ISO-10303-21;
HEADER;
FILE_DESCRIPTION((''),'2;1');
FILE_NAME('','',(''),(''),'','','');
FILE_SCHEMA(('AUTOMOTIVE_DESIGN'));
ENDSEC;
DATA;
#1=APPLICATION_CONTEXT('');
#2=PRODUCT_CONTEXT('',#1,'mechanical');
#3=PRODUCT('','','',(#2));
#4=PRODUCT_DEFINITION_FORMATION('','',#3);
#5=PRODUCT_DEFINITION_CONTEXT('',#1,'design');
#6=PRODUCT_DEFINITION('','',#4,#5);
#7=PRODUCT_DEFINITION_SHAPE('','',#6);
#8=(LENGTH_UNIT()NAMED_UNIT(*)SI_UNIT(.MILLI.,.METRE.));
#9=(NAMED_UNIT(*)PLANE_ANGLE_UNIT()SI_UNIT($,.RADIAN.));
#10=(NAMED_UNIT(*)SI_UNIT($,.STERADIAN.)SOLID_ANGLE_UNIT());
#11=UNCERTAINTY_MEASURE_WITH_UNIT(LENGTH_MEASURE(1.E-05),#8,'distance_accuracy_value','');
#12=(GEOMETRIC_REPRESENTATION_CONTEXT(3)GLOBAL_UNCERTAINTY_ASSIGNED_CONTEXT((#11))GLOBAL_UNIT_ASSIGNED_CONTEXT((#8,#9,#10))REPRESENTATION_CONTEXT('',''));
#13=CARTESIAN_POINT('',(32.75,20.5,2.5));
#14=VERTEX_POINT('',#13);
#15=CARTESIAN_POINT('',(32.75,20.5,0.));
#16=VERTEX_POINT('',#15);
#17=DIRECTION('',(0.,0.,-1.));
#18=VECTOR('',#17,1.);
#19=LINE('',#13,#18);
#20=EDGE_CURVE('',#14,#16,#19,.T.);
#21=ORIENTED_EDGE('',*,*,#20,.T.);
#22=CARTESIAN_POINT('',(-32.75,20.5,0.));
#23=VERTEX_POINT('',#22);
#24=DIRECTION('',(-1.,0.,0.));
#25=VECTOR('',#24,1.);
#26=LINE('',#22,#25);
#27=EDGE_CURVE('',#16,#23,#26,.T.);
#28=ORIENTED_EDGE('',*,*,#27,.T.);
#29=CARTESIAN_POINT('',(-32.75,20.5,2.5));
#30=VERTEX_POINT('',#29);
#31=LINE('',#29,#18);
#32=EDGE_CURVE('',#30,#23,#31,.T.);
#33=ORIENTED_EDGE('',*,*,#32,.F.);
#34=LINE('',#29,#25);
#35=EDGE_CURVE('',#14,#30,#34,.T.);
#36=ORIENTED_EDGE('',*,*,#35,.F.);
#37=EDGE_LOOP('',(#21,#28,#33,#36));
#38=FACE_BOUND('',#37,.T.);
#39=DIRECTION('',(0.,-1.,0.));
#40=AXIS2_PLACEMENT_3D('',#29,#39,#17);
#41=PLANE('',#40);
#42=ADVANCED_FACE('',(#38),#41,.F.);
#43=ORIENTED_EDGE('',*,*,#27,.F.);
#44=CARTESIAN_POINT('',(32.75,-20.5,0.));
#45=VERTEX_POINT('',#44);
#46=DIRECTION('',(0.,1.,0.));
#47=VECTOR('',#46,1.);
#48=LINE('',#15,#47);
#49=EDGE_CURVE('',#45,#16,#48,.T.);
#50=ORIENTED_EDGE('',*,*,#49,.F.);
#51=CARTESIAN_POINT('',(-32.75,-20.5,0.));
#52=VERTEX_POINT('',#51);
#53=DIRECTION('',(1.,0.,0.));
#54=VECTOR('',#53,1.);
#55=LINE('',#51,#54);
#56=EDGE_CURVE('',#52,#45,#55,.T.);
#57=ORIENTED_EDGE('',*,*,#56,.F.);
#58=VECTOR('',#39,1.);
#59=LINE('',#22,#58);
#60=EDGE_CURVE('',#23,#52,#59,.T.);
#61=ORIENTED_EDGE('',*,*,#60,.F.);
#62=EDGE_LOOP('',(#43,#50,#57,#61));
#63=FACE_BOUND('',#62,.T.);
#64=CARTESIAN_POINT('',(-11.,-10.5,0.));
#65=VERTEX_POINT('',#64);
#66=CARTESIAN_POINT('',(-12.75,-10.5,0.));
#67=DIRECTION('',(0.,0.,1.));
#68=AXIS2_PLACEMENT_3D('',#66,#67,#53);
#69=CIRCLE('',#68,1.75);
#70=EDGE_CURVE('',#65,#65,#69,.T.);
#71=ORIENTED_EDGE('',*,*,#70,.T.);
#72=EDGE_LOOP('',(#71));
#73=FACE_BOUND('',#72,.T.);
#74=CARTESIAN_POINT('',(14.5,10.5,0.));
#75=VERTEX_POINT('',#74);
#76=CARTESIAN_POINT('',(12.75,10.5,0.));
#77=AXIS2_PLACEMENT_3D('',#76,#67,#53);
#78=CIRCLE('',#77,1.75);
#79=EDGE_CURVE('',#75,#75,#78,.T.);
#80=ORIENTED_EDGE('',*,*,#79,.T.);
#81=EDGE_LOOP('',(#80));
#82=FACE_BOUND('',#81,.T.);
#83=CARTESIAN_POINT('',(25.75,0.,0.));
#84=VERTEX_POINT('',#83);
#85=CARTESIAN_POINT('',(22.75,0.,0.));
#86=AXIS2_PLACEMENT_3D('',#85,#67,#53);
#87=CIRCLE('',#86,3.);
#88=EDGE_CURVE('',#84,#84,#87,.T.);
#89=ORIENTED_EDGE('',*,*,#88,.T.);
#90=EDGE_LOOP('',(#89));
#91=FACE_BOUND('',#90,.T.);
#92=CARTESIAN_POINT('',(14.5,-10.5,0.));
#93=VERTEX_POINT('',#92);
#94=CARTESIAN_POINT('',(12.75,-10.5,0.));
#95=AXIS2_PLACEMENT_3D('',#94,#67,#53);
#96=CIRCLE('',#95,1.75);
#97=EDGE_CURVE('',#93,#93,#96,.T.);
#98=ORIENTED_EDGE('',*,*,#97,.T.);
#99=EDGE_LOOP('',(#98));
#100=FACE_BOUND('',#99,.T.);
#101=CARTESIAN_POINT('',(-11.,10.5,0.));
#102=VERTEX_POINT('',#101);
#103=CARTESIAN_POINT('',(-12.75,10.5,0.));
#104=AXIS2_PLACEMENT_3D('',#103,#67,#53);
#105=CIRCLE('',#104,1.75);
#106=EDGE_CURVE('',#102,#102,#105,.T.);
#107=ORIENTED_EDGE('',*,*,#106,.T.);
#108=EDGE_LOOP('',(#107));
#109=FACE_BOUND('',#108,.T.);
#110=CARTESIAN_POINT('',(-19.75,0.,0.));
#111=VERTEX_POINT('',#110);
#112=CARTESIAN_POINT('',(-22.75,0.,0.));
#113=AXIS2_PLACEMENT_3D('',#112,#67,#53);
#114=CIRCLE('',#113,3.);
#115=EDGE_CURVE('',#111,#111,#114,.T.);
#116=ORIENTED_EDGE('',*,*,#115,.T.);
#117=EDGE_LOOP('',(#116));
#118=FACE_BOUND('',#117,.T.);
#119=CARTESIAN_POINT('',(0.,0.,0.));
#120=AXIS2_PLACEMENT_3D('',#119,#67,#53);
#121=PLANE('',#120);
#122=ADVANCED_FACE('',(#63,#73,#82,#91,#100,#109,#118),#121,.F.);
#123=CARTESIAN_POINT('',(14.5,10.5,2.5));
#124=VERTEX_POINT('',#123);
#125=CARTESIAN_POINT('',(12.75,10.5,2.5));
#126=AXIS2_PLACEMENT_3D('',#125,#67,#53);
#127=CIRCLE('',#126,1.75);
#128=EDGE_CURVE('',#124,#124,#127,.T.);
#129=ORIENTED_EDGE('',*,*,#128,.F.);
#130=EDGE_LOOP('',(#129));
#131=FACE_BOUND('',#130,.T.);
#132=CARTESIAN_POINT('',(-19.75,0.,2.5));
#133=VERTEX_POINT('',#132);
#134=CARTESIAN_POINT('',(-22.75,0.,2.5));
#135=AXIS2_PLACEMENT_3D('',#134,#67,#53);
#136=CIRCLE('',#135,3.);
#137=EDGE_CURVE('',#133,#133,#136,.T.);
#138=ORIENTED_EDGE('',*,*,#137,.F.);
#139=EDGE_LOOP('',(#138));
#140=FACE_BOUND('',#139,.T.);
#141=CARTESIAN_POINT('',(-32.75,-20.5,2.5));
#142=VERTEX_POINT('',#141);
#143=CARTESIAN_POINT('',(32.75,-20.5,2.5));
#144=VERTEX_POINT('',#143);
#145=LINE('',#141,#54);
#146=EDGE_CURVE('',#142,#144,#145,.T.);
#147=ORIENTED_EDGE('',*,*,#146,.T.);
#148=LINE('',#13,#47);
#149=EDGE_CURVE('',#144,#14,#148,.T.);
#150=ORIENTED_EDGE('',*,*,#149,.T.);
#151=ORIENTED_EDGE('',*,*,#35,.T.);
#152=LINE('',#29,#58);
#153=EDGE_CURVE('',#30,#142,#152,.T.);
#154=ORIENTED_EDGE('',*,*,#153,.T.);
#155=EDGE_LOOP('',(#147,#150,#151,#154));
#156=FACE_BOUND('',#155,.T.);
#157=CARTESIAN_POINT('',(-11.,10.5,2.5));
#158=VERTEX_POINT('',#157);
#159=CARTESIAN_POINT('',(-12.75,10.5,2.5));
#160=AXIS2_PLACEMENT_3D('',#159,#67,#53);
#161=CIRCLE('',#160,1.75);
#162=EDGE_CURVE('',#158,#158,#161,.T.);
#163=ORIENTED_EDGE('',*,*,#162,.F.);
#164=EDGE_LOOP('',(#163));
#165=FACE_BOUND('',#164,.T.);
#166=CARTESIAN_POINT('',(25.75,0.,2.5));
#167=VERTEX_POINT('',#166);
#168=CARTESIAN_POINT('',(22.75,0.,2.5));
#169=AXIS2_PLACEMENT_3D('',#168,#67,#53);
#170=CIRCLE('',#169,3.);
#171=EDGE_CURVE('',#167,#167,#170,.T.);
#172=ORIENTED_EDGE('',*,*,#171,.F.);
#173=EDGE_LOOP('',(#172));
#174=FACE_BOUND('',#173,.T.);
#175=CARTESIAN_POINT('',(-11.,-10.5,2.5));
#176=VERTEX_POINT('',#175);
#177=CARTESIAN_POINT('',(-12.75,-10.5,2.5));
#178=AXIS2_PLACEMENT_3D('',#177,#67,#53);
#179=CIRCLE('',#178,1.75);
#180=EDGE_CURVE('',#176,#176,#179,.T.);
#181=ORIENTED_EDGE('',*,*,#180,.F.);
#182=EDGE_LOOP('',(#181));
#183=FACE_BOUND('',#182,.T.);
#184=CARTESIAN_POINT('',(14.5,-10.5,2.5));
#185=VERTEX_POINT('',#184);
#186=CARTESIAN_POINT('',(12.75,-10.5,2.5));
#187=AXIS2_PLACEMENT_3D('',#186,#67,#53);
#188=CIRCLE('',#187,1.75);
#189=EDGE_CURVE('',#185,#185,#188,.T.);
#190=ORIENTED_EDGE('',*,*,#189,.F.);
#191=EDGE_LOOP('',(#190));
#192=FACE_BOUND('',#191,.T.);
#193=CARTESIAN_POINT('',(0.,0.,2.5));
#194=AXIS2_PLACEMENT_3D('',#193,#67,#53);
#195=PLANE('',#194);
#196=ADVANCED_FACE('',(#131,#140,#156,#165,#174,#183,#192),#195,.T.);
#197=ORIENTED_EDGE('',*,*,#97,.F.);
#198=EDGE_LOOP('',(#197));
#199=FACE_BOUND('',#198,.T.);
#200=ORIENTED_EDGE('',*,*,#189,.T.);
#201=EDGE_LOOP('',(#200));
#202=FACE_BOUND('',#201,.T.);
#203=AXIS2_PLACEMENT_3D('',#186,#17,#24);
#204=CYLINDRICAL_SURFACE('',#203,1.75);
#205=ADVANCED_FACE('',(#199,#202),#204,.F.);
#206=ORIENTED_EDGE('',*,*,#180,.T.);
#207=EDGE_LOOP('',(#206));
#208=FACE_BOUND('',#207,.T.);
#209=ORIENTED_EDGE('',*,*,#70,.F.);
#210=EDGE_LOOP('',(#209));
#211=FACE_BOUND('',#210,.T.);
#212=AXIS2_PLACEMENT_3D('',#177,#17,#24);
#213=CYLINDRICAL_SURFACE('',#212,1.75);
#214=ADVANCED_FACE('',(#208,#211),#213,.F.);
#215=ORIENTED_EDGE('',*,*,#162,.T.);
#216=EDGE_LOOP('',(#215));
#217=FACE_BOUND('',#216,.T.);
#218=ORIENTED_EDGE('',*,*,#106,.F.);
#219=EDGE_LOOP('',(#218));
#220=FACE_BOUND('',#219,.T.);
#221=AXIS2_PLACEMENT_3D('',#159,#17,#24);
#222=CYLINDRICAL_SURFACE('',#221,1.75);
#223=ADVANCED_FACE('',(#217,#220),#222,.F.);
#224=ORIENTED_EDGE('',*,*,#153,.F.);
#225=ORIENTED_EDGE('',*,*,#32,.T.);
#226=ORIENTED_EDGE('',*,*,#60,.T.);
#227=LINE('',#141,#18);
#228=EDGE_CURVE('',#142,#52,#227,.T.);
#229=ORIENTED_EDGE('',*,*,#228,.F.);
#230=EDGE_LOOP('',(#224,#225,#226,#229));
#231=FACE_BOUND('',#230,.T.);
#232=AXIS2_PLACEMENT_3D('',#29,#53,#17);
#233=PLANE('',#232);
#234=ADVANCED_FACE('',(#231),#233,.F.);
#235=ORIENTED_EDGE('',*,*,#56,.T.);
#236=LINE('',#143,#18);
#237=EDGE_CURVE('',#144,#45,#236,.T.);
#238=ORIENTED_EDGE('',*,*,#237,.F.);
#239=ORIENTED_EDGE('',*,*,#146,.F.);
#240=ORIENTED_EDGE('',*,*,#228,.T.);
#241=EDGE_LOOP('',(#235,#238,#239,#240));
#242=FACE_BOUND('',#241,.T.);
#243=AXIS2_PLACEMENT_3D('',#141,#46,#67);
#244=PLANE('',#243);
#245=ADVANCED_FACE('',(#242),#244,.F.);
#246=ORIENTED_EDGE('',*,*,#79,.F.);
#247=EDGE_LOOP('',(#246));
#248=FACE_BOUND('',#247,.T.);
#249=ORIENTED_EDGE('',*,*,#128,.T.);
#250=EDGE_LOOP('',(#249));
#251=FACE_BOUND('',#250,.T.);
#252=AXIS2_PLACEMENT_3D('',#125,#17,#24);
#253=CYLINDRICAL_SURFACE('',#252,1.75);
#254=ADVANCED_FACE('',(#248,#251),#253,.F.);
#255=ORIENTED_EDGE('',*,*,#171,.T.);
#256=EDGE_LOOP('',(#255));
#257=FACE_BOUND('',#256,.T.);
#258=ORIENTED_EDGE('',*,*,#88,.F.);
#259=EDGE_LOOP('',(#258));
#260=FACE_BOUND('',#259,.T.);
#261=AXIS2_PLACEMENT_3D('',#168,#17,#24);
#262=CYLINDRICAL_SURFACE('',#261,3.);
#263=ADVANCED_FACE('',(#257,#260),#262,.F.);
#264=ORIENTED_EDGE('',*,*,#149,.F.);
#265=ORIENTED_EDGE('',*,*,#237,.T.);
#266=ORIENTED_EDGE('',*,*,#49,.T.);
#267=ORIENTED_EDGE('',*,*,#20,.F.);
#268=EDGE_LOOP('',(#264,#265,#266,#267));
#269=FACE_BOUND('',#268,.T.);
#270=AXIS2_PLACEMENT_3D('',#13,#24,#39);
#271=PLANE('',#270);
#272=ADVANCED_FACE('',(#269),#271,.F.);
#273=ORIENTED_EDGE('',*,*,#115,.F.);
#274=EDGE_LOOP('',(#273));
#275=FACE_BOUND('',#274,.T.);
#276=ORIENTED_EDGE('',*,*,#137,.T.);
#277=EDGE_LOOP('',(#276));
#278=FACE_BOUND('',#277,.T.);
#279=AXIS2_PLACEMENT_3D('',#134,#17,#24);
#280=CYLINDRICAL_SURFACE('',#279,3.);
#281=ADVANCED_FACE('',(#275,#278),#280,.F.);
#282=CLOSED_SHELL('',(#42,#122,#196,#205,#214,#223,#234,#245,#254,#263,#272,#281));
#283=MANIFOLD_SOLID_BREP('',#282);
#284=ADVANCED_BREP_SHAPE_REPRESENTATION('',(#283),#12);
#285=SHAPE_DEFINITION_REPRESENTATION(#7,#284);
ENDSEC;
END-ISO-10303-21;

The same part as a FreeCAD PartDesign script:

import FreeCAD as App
import Part
import Sketcher
from FreeCAD import Vector

doc = App.newDocument("Part")
params = doc.addObject("Spreadsheet::Sheet", "Params")
for row, (alias, value) in enumerate([
    ("sketch1_diameter", "6 mm"),
    ("sketch1_diameter2", "3.5 mm"),
    ("sketch1_height", "41 mm"),
    ("sketch1_width", "65.5 mm"),
    ("pad1_length", "2.5 mm"),
], start=1):
    params.set(f"A{row}", alias)
    params.set(f"B{row}", "=" + value)
    params.setAlias(f"B{row}", alias)

body = doc.addObject("PartDesign::Body", "Body")

# Sketch on XY plane
sketch1 = body.newObject("Sketcher::SketchObject", "Sketch")
sketch1.AttachmentSupport = (doc.getObject("XY_Plane"), [""])
sketch1.MapMode = "FlatFace"
sketch1.addGeometry([
    Part.LineSegment(Vector(-32.75, 20.5, 0), Vector(-32.75, -20.5, 0)),  # 0
    Part.LineSegment(Vector(-32.75, -20.5, 0), Vector(32.75, -20.5, 0)),  # 1
    Part.LineSegment(Vector(32.75, -20.5, 0), Vector(32.75, 20.5, 0)),  # 2
    Part.LineSegment(Vector(32.75, 20.5, 0), Vector(-32.75, 20.5, 0)),  # 3
    Part.Circle(Vector(-12.75, -10.5, 0), Vector(0, 0, 1), 1.75),  # 4
    Part.Circle(Vector(-22.75, 0, 0), Vector(0, 0, 1), 3),  # 5
    Part.Circle(Vector(12.75, -10.5, 0), Vector(0, 0, 1), 1.75),  # 6
    Part.Circle(Vector(22.75, 0, 0), Vector(0, 0, 1), 3),  # 7
    Part.Circle(Vector(-12.75, 10.5, 0), Vector(0, 0, 1), 1.75),  # 8
    Part.Circle(Vector(12.75, 10.5, 0), Vector(0, 0, 1), 1.75),  # 9
], False)
sketch1.addConstraint([
    Sketcher.Constraint("Coincident", 0, 2, 1, 1),
    Sketcher.Constraint("Coincident", 1, 2, 2, 1),
    Sketcher.Constraint("Coincident", 2, 2, 3, 1),
    Sketcher.Constraint("Coincident", 3, 2, 0, 1),
    Sketcher.Constraint("Vertical", 0),
    Sketcher.Constraint("Horizontal", 1),
    Sketcher.Constraint("Vertical", 2),
    Sketcher.Constraint("Horizontal", 3),
    Sketcher.Constraint("Equal", 4, 6),
    Sketcher.Constraint("Equal", 5, 7),
    Sketcher.Constraint("Equal", 6, 8),
    Sketcher.Constraint("Equal", 8, 9),
    Sketcher.Constraint("Symmetric", 5, 3, 7, 3, -1, 1),
    Sketcher.Constraint("Symmetric", 6, 3, 8, 3, -1, 1),
    Sketcher.Constraint("Symmetric", 4, 3, 9, 3, -1, 1),
    Sketcher.Constraint("Symmetric", 0, 2, 2, 2, -1, 1),
    Sketcher.Constraint("Symmetric", 4, 3, 6, 3, -2),
    Sketcher.Constraint("PointOnObject", 5, 3, -1),
    Sketcher.Constraint("Diameter", 5, 6.0),
    Sketcher.Constraint("Diameter", 4, 3.5),
    Sketcher.Constraint("DistanceY", 0, 2, 0, 1, 41.0),
    Sketcher.Constraint("DistanceX", 1, 1, 1, 2, 65.5),
    Sketcher.Constraint("DistanceX", 5, 3, 4, 3, 10.0),
    Sketcher.Constraint("DistanceY", 4, 3, 8, 3, 21.0),
    Sketcher.Constraint("DistanceX", 0, 2, 4, 3, 20.0),
])
sketch1.setExpression("Constraints[18]", "Params.sketch1_diameter")
sketch1.setExpression("Constraints[19]", "Params.sketch1_diameter2")
sketch1.setExpression("Constraints[20]", "Params.sketch1_height")
sketch1.setExpression("Constraints[21]", "Params.sketch1_width")
pad1 = body.newObject("PartDesign::Pad", "Pad")
pad1.Profile = sketch1
pad1.setExpression("Length", "Params.pad1_length")

doc.recompute()
